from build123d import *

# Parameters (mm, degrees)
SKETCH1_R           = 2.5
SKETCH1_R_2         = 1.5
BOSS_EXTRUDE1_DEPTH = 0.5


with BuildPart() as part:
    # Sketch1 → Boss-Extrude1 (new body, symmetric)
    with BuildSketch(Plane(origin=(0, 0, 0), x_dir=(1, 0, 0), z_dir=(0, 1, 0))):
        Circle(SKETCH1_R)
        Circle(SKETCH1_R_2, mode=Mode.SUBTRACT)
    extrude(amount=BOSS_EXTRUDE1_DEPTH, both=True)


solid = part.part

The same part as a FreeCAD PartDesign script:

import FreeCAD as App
import Part
import Sketcher

V = App.Vector
Q = App.Units.Quantity

doc = App.newDocument("Part")
body = doc.addObject("PartDesign::Body", "Body")

# Sketch on XZ plane
sketch1 = body.newObject("Sketcher::SketchObject", "Sketch")
sketch1.AttachmentSupport = (doc.getObject("XZ_Plane"), [""])
sketch1.MapMode = "FlatFace"
sketch1.addGeometry(Part.Circle(V(0, 0, 0), V(0, 0, 1), 2.5), False)
sketch1.addGeometry(Part.Circle(V(0, 0, 0), V(0, 0, 1), 1.5), False)
sketch1.addConstraint(Sketcher.Constraint("Coincident", 0, 3, -1, 1))
sketch1.addConstraint(Sketcher.Constraint("Coincident", 1, 3, -1, 1))
sketch1.addConstraint(Sketcher.Constraint("Diameter", 0, Q("5 mm")))
sketch1.addConstraint(Sketcher.Constraint("Diameter", 1, Q("3 mm")))
pad1 = body.newObject("PartDesign::Pad", "Pad")
pad1.Profile = sketch1
pad1.Length = 1
pad1.Midplane = True

doc.recompute()
